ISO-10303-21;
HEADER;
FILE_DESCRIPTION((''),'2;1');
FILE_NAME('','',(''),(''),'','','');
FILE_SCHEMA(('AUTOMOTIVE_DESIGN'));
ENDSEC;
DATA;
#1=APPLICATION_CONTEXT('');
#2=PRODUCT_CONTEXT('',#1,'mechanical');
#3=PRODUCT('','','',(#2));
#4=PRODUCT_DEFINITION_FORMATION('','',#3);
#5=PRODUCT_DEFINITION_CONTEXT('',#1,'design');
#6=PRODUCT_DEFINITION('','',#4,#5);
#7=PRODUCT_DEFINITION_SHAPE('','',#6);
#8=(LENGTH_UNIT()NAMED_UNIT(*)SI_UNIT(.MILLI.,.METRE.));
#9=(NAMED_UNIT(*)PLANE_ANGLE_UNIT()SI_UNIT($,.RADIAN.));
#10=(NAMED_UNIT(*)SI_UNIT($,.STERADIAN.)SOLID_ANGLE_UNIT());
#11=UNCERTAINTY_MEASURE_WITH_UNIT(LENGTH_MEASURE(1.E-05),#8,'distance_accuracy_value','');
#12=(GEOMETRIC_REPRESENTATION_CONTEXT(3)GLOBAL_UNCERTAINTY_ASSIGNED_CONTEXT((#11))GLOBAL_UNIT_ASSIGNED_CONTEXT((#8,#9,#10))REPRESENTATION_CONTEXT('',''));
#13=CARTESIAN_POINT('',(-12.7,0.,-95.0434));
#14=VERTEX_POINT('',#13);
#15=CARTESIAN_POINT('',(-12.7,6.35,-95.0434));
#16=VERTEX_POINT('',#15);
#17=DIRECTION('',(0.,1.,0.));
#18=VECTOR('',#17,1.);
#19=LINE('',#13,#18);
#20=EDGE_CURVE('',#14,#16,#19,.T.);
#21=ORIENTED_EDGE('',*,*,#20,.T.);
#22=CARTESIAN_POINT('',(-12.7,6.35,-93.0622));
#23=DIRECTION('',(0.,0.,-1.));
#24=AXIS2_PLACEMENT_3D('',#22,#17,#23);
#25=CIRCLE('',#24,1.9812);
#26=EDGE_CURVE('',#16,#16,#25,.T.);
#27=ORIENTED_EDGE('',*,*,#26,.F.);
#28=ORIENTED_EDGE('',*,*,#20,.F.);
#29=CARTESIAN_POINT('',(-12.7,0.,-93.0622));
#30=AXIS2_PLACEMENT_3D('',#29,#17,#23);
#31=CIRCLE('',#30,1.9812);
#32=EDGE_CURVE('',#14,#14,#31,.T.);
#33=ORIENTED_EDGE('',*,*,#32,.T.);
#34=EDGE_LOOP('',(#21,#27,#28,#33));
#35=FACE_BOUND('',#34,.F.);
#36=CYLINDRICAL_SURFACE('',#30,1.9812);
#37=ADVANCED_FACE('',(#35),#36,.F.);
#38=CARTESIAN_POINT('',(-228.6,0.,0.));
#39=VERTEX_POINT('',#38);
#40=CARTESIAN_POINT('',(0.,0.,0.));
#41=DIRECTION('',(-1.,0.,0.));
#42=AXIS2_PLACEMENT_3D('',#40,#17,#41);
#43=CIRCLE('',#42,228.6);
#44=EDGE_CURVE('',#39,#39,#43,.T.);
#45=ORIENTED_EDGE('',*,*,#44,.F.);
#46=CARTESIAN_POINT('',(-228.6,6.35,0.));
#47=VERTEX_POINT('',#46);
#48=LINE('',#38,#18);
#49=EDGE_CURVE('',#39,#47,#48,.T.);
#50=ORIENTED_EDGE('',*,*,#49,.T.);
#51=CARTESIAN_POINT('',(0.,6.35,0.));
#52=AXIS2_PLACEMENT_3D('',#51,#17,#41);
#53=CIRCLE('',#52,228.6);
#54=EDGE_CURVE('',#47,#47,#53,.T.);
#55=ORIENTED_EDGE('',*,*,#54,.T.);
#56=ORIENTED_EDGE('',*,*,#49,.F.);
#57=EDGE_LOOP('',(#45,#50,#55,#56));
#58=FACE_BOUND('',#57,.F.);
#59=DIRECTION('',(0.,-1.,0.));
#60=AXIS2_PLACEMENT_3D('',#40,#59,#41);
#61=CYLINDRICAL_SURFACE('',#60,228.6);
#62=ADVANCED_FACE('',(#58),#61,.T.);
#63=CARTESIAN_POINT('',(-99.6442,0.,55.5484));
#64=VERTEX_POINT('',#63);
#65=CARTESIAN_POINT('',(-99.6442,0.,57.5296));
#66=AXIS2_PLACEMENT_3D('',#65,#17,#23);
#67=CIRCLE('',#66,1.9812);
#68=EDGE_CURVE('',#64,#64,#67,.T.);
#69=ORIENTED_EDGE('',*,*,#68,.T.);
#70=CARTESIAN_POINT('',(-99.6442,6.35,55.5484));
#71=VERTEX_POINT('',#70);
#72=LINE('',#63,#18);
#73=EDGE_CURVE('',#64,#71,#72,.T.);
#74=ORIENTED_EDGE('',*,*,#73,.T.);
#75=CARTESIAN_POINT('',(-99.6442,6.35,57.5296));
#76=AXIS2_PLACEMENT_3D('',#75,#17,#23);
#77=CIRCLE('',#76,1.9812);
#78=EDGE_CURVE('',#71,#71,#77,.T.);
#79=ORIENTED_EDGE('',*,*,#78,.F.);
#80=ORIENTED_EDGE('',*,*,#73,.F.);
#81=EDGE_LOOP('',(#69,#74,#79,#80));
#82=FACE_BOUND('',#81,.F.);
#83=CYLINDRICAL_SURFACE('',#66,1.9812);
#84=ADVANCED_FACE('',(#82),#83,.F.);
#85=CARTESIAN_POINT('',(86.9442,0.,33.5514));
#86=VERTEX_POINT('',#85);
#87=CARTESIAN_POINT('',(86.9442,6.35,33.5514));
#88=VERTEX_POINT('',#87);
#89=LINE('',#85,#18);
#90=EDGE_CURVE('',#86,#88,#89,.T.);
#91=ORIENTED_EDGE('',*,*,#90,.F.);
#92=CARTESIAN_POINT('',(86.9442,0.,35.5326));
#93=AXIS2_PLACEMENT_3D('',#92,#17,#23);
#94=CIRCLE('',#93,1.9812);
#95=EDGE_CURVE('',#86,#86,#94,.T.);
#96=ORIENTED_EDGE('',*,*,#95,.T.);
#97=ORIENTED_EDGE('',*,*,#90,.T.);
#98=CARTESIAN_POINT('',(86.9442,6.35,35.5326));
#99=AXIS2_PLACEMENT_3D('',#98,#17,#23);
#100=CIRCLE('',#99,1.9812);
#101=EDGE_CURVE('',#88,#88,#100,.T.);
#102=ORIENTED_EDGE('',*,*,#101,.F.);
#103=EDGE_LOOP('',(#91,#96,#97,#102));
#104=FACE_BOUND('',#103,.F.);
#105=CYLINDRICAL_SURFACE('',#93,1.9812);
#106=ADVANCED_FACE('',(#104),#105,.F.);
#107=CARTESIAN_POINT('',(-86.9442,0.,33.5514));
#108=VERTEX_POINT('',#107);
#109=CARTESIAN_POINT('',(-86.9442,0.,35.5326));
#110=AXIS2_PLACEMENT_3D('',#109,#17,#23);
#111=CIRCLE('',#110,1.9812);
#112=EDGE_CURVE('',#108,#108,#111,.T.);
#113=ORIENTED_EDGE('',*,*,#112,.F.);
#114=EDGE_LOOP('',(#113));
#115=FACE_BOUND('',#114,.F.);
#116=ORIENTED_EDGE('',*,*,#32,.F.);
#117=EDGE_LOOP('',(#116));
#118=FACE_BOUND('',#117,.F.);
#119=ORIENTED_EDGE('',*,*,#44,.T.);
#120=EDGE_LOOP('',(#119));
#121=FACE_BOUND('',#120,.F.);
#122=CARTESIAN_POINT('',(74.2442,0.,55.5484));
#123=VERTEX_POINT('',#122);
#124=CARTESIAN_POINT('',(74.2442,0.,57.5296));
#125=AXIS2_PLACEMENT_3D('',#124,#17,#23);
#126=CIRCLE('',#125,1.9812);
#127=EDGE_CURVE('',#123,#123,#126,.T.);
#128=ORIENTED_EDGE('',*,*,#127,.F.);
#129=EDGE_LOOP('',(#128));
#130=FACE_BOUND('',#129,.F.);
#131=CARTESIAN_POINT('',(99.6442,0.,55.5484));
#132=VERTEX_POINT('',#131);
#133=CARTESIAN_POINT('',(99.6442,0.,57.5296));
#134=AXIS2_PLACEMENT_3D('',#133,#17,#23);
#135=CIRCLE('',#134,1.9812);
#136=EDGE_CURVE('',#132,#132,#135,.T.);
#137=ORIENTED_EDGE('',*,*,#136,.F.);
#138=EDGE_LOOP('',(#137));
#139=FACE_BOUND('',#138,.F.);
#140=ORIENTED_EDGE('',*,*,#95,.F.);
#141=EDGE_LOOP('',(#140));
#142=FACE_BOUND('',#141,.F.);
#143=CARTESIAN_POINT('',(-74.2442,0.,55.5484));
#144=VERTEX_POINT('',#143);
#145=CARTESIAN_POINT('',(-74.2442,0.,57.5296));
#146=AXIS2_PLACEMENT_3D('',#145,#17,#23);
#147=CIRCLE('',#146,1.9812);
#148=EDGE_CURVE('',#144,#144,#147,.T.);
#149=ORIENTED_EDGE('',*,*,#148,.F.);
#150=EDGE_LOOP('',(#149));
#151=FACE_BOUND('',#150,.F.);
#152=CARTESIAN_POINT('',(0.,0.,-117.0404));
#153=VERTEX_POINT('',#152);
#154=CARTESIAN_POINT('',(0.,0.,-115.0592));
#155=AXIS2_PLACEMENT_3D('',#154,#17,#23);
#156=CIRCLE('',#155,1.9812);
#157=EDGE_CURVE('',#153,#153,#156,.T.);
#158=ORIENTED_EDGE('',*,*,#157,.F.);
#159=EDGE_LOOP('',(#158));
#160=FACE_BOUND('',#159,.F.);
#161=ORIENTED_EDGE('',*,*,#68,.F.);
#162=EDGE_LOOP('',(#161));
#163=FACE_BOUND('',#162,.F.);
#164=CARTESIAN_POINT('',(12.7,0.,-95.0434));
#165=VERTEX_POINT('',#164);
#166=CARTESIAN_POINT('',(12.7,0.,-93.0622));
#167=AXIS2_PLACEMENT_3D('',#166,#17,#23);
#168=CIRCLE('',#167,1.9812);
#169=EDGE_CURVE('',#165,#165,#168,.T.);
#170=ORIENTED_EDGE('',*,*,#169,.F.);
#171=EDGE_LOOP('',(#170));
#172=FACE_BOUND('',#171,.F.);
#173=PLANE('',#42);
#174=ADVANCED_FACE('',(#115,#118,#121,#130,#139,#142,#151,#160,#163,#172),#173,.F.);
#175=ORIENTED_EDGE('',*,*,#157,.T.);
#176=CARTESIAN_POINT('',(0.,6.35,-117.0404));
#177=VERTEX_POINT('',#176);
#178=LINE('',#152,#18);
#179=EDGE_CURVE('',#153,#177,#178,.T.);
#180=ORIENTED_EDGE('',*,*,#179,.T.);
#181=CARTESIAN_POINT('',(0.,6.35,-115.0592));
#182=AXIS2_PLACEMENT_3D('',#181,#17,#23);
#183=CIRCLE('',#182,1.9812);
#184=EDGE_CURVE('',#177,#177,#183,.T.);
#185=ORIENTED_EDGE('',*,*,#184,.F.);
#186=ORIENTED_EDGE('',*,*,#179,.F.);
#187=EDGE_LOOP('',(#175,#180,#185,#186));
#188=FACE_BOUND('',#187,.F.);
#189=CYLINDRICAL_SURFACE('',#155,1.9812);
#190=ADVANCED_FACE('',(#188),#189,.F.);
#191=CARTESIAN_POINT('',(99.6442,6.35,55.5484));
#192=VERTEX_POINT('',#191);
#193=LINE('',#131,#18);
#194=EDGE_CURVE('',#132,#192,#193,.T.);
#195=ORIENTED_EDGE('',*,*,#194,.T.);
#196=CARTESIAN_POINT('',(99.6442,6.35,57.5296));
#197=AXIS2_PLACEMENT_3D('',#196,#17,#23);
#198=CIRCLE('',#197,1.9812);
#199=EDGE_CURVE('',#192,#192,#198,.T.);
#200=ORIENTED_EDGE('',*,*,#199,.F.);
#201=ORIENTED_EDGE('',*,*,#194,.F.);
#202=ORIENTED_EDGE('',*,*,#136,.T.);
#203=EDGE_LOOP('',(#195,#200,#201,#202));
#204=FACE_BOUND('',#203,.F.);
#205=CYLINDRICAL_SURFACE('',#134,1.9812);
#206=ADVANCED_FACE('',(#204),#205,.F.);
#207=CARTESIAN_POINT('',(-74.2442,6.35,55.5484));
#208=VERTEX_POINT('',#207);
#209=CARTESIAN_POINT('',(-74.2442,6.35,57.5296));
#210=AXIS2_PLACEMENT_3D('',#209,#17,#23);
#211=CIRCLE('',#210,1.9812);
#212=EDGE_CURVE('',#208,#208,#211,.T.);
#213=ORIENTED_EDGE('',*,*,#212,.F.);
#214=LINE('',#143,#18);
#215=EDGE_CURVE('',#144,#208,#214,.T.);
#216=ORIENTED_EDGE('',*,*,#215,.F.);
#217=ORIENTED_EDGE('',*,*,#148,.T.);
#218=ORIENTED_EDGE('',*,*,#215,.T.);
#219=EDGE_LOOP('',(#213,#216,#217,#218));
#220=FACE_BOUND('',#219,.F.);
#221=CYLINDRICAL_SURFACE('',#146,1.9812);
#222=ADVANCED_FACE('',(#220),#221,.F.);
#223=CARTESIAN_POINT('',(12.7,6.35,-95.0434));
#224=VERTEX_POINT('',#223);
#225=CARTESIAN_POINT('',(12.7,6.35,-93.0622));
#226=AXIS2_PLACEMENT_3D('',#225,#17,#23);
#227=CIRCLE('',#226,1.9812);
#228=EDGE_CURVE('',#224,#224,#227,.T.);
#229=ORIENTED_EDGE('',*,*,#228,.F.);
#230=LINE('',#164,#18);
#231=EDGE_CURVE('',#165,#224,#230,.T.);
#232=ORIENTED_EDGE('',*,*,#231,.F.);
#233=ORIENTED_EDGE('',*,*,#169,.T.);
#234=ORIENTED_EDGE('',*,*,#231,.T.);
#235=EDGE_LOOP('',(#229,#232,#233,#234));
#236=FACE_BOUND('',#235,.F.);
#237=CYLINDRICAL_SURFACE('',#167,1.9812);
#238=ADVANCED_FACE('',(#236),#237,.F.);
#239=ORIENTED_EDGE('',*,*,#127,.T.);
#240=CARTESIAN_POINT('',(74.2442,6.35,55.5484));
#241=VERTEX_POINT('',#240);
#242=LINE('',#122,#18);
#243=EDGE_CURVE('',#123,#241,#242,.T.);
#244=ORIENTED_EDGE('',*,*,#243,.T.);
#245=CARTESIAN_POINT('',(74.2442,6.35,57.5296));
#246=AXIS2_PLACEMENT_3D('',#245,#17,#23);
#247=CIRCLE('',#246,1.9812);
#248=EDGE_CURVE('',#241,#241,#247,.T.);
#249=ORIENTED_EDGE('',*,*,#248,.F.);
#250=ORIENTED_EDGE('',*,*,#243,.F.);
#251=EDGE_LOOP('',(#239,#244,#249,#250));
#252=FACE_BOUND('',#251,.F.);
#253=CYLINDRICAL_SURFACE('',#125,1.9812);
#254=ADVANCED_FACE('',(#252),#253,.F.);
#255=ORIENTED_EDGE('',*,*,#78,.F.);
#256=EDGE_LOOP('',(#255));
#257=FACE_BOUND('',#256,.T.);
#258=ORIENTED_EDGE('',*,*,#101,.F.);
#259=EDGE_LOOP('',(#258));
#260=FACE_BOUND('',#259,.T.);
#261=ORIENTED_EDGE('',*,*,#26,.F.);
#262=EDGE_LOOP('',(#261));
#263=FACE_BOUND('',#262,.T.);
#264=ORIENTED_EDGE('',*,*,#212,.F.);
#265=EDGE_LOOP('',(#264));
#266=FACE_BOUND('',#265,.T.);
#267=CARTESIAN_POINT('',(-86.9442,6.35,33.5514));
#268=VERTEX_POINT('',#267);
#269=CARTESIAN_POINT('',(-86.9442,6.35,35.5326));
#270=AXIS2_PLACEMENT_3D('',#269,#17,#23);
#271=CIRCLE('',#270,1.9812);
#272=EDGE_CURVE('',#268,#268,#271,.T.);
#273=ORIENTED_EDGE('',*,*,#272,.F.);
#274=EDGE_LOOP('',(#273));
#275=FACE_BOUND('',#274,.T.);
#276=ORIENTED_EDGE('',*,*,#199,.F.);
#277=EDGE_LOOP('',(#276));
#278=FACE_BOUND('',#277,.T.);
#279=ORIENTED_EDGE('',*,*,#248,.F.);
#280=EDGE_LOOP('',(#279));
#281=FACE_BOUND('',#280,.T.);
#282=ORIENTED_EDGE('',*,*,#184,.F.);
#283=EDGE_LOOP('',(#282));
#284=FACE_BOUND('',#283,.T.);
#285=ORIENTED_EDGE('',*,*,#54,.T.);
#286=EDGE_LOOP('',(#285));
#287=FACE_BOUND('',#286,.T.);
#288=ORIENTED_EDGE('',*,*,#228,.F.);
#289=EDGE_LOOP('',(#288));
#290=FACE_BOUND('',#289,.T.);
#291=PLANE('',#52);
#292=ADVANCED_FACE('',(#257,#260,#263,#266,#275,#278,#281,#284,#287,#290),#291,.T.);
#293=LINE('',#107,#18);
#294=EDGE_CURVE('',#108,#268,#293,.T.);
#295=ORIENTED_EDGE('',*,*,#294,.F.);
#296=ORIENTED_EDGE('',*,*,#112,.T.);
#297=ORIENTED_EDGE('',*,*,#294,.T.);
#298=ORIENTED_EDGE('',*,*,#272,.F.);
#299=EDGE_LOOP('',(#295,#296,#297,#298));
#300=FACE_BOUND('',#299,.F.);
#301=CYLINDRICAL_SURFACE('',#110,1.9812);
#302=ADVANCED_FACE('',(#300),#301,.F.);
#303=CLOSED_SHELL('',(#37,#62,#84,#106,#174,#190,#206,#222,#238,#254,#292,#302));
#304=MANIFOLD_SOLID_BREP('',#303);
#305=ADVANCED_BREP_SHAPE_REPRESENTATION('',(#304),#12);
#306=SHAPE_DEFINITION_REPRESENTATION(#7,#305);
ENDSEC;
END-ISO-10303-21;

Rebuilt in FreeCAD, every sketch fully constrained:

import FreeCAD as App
import Part
import Sketcher
from FreeCAD import Vector
Q = App.Units.Quantity

doc = App.newDocument("Part")
body = doc.addObject("PartDesign::Body", "Body")

# Sketch on XZ plane
sketch1 = body.newObject("Sketcher::SketchObject", "Sketch")
sketch1.AttachmentSupport = (doc.getObject("XZ_Plane"), [""])
sketch1.MapMode = "FlatFace"
sketch1.addGeometry(Part.Circle(Vector(0, 0, 0), Vector(0, 0, 1), 229), False)
sketch1.addConstraint([
    Sketcher.Constraint("Coincident", 0, 3, -1, 1),
    Sketcher.Constraint("Diameter", 0, Q("18 in")),
])
pad1 = body.newObject("PartDesign::Pad", "Pad")
pad1.Profile = sketch1
pad1.Length = Q("0.25 in")
pad1.Reversed = True

# Sketch on XZ plane
sketch2 = body.newObject("Sketcher::SketchObject", "Sketch001")
sketch2.AttachmentSupport = (doc.getObject("XZ_Plane"), [""])
sketch2.MapMode = "FlatFace"
sketch2.addGeometry([
    Part.Circle(Vector(-99.6, 57.5, 0), Vector(0, 0, 1), 2),  # 0
    Part.Circle(Vector(-74.2, 57.5, 0), Vector(0, 0, 1), 2),  # 1
    Part.Circle(Vector(-86.9, 35.5, 0), Vector(0, 0, 1), 2),  # 2
    Part.Circle(Vector(-12.7, -93.1, 0), Vector(0, 0, 1), 2),  # 3
    Part.Circle(Vector(0, -115.1, 0), Vector(0, 0, 1), 2),  # 4
    Part.Circle(Vector(12.7, -93.1, 0), Vector(0, 0, 1), 2),  # 5
    Part.Circle(Vector(99.6, 57.5, 0), Vector(0, 0, 1), 2),  # 6
    Part.Circle(Vector(74.2, 57.5, 0), Vector(0, 0, 1), 2),  # 7
    Part.Circle(Vector(86.9, 35.5, 0), Vector(0, 0, 1), 2),  # 8
], False)
sketch2.addConstraint([
    Sketcher.Constraint("Equal", 0, 1),
    Sketcher.Constraint("Equal", 1, 2),
    Sketcher.Constraint("Equal", 2, 3),
    Sketcher.Constraint("Equal", 3, 4),
    Sketcher.Constraint("Equal", 4, 5),
    Sketcher.Constraint("Equal", 5, 6),
    Sketcher.Constraint("Equal", 6, 7),
    Sketcher.Constraint("Equal", 7, 8),
    Sketcher.Constraint("Symmetric", 3, 3, 5, 3, -2),
    Sketcher.Constraint("Symmetric", 0, 3, 6, 3, -2),
    Sketcher.Constraint("Symmetric", 1, 3, 7, 3, -2),
    Sketcher.Constraint("Symmetric", 2, 3, 8, 3, -2),
    Sketcher.Constraint("PointOnObject", 4, 3, -2),
    Sketcher.Constraint("Horizontal", 0, 3, 1, 3),
    Sketcher.Constraint("Diameter", 0, Q("0.156 in")),
    Sketcher.Constraint("DistanceX", 0, 3, 1, 3, Q("1 in")),
    Sketcher.Constraint("DistanceX", 3, 3, 5, 3, Q("1 in")),
    Sketcher.Constraint("DistanceX", 2, 3, 1, 3, Q("0.5 in")),
    Sketcher.Constraint("DistanceX", 0, 3, -1, 1, Q("3.923 in")),
    Sketcher.Constraint("DistanceY", 4, 3, -1, 1, Q("4.5299 in")),
    Sketcher.Constraint("DistanceY", 3, 3, 1, 3, Q("5.9288 in")),
    Sketcher.Constraint("DistanceY", 4, 3, 2, 3, Q("5.9288 in")),
    Sketcher.Constraint("DistanceY", -1, 1, 0, 3, 57.5296),
])
doc.recompute()
hole = body.newObject("PartDesign::Hole", "Hole")
hole.Profile = sketch2
hole.ThreadType = "None"
hole.Diameter = Q("0.156 in")
hole.DepthType = "ThroughAll"

doc.recompute()
